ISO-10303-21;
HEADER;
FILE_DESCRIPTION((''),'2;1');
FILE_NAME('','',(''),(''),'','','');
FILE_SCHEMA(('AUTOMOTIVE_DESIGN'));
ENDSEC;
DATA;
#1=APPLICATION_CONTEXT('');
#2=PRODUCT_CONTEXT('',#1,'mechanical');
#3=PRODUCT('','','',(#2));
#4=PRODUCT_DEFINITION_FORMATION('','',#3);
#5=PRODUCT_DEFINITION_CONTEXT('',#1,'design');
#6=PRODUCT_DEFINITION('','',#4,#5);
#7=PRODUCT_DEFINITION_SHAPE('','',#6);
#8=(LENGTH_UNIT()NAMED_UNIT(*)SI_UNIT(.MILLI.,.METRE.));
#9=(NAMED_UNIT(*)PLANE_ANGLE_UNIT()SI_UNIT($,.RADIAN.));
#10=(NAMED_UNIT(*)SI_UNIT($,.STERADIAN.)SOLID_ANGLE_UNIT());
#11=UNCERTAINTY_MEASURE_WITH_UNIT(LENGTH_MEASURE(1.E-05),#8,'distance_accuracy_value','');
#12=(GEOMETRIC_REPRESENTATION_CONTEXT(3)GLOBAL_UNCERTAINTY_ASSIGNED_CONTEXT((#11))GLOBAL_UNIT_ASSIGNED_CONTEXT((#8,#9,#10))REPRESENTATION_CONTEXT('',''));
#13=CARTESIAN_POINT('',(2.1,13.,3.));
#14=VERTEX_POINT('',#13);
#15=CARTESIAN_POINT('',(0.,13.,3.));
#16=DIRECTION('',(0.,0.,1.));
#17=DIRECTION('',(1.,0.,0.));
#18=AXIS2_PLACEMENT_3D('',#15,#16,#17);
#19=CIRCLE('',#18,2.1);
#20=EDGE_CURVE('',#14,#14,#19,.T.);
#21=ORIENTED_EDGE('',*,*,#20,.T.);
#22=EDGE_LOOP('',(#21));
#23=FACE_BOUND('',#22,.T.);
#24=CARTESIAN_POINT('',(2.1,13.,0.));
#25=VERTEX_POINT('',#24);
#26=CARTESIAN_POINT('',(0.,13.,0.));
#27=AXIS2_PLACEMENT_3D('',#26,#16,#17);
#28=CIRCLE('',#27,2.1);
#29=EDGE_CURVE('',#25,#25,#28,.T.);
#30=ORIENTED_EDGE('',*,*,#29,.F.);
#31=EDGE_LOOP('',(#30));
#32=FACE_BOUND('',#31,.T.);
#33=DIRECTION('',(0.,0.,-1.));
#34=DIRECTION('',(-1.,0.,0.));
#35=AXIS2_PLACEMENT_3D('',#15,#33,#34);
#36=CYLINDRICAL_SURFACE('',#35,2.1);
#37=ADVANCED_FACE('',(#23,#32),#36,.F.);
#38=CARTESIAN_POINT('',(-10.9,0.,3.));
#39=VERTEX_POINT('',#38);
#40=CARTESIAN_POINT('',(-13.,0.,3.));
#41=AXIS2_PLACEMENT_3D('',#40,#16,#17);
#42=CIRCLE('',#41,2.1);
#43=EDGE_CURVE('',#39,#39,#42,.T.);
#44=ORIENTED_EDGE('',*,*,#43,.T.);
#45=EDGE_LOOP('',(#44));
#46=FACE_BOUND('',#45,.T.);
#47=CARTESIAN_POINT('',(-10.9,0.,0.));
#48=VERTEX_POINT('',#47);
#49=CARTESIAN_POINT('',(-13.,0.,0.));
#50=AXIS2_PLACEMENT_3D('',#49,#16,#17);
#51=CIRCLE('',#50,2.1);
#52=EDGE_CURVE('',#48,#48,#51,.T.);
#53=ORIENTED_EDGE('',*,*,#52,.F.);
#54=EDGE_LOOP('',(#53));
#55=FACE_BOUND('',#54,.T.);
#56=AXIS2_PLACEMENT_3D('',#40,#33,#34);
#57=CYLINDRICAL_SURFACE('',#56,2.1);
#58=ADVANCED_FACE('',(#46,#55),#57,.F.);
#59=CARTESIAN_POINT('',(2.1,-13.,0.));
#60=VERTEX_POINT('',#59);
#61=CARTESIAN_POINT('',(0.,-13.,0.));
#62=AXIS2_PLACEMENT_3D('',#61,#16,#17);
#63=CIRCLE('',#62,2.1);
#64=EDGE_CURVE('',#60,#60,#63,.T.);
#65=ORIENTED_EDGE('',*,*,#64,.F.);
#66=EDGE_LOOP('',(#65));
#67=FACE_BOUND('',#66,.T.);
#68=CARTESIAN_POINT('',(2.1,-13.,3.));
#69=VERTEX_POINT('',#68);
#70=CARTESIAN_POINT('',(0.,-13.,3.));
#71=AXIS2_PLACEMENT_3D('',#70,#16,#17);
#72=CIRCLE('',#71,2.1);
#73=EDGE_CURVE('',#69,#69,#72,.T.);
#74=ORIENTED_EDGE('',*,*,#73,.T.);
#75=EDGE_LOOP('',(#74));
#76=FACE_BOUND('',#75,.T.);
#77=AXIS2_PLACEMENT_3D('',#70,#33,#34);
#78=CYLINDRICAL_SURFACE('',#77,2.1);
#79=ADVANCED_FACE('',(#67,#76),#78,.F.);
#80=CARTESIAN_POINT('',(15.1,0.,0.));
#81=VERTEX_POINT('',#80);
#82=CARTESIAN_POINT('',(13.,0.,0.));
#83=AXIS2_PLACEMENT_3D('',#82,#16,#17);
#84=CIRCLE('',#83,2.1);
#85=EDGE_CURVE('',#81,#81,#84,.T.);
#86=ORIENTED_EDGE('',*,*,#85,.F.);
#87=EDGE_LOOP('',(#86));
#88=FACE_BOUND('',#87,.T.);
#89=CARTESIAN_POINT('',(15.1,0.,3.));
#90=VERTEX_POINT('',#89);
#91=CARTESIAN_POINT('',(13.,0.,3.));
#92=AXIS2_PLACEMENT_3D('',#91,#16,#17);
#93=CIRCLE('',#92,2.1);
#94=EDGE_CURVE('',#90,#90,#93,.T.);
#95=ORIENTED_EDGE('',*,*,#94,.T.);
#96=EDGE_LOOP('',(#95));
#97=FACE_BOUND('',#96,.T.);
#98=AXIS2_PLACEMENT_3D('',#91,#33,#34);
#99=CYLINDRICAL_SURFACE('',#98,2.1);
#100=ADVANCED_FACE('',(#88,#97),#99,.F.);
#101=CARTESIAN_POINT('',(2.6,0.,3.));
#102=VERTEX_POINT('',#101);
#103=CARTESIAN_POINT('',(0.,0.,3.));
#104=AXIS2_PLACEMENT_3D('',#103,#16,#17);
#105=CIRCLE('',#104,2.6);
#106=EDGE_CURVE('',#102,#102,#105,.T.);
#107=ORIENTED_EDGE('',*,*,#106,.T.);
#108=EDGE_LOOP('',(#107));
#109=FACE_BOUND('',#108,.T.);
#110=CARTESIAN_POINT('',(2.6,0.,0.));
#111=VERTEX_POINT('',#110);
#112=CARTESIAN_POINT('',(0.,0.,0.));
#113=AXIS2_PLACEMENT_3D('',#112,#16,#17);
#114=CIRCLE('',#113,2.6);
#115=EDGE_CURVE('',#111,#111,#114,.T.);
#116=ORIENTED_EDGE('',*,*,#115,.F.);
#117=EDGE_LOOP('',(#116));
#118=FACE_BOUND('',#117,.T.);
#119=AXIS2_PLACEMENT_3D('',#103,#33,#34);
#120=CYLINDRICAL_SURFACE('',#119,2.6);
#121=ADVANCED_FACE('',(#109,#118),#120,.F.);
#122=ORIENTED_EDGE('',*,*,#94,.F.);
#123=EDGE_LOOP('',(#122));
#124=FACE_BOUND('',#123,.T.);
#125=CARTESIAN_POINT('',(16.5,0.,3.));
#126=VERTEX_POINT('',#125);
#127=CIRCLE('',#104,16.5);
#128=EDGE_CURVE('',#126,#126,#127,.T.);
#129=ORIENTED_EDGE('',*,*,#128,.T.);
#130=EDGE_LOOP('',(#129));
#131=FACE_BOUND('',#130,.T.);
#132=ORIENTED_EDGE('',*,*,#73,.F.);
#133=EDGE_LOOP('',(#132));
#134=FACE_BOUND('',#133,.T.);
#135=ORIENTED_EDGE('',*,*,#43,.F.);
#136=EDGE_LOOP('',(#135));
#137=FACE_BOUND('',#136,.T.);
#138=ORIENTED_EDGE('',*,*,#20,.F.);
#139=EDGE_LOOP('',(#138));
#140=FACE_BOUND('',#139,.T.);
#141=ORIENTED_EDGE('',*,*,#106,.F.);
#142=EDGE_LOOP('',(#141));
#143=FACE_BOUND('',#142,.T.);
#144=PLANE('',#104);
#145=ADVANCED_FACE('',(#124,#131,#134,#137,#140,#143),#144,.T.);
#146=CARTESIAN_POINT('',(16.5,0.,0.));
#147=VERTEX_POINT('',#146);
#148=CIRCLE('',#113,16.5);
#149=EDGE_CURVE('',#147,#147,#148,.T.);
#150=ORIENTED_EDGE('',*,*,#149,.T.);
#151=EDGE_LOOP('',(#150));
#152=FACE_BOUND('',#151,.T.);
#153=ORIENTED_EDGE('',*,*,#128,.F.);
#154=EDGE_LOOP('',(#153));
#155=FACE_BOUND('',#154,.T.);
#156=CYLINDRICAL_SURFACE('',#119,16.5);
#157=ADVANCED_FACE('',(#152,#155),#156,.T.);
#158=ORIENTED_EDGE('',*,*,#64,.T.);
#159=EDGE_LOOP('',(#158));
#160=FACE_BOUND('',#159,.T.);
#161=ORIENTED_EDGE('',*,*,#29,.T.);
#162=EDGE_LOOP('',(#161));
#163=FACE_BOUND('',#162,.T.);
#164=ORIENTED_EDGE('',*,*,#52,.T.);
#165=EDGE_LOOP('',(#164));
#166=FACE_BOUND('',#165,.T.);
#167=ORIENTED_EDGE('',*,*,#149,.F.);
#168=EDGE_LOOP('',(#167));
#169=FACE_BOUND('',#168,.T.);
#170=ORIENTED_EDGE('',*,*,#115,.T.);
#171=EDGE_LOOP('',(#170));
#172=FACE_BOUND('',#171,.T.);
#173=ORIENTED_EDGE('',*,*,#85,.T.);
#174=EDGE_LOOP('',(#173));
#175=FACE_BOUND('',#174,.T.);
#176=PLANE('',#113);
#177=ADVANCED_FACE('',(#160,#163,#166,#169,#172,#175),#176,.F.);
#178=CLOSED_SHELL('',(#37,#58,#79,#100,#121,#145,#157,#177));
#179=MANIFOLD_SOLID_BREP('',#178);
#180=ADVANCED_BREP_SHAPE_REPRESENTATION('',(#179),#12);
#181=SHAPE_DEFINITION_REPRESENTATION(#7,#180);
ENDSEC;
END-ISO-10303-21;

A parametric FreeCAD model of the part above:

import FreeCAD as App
import Part
import Sketcher

doc = App.newDocument("Part")
body = doc.addObject("PartDesign::Body", "Body")

# Sketch on XY plane
sketch1 = doc.addObject("Sketcher::SketchObject", "Sketch")
body.addObject(sketch1)
sketch1.AttachmentSupport = (doc.XY_Plane, [""])
sketch1.MapMode = "FlatFace"
sketch1.addGeometry([
    Part.Circle(App.Vector(0, 0, 0), App.Vector(0, 0, 1), 16.5),  # 0
    Part.Circle(App.Vector(0, -13, 0), App.Vector(0, 0, 1), 2.1),  # 1
    Part.Circle(App.Vector(-13, 0, 0), App.Vector(0, 0, 1), 2.1),  # 2
    Part.Circle(App.Vector(0, 0, 0), App.Vector(0, 0, 1), 2.6),  # 3
    Part.Circle(App.Vector(0, 13, 0), App.Vector(0, 0, 1), 2.1),  # 4
    Part.Circle(App.Vector(13, 0, 0), App.Vector(0, 0, 1), 2.1),  # 5
], False)
sketch1.addConstraint([
    Sketcher.Constraint("Coincident", 0, 3, -1, 1),
    Sketcher.Constraint("Coincident", 3, 3, -1, 1),
    Sketcher.Constraint("Equal", 1, 2),
    Sketcher.Constraint("Equal", 2, 4),
    Sketcher.Constraint("Equal", 4, 5),
    Sketcher.Constraint("Symmetric", 1, 3, 4, 3, -1, 1),
    Sketcher.Constraint("Symmetric", 2, 3, 5, 3, -1, 1),
    Sketcher.Constraint("PointOnObject", 1, 3, -2),
    Sketcher.Constraint("PointOnObject", 2, 3, -1),
    Sketcher.Constraint("Diameter", 0, 33.0),
    Sketcher.Constraint("Diameter", 1, 4.2),
    Sketcher.Constraint("Diameter", 3, 5.2),
    Sketcher.Constraint("DistanceY", 1, 3, -1, 1, 13.0),
    Sketcher.Constraint("DistanceX", 2, 3, -1, 1, 13.0),
])
pad1 = doc.addObject("PartDesign::Pad", "Pad")
body.addObject(pad1)
pad1.Profile = sketch1
pad1.Length = 3

doc.recompute()
